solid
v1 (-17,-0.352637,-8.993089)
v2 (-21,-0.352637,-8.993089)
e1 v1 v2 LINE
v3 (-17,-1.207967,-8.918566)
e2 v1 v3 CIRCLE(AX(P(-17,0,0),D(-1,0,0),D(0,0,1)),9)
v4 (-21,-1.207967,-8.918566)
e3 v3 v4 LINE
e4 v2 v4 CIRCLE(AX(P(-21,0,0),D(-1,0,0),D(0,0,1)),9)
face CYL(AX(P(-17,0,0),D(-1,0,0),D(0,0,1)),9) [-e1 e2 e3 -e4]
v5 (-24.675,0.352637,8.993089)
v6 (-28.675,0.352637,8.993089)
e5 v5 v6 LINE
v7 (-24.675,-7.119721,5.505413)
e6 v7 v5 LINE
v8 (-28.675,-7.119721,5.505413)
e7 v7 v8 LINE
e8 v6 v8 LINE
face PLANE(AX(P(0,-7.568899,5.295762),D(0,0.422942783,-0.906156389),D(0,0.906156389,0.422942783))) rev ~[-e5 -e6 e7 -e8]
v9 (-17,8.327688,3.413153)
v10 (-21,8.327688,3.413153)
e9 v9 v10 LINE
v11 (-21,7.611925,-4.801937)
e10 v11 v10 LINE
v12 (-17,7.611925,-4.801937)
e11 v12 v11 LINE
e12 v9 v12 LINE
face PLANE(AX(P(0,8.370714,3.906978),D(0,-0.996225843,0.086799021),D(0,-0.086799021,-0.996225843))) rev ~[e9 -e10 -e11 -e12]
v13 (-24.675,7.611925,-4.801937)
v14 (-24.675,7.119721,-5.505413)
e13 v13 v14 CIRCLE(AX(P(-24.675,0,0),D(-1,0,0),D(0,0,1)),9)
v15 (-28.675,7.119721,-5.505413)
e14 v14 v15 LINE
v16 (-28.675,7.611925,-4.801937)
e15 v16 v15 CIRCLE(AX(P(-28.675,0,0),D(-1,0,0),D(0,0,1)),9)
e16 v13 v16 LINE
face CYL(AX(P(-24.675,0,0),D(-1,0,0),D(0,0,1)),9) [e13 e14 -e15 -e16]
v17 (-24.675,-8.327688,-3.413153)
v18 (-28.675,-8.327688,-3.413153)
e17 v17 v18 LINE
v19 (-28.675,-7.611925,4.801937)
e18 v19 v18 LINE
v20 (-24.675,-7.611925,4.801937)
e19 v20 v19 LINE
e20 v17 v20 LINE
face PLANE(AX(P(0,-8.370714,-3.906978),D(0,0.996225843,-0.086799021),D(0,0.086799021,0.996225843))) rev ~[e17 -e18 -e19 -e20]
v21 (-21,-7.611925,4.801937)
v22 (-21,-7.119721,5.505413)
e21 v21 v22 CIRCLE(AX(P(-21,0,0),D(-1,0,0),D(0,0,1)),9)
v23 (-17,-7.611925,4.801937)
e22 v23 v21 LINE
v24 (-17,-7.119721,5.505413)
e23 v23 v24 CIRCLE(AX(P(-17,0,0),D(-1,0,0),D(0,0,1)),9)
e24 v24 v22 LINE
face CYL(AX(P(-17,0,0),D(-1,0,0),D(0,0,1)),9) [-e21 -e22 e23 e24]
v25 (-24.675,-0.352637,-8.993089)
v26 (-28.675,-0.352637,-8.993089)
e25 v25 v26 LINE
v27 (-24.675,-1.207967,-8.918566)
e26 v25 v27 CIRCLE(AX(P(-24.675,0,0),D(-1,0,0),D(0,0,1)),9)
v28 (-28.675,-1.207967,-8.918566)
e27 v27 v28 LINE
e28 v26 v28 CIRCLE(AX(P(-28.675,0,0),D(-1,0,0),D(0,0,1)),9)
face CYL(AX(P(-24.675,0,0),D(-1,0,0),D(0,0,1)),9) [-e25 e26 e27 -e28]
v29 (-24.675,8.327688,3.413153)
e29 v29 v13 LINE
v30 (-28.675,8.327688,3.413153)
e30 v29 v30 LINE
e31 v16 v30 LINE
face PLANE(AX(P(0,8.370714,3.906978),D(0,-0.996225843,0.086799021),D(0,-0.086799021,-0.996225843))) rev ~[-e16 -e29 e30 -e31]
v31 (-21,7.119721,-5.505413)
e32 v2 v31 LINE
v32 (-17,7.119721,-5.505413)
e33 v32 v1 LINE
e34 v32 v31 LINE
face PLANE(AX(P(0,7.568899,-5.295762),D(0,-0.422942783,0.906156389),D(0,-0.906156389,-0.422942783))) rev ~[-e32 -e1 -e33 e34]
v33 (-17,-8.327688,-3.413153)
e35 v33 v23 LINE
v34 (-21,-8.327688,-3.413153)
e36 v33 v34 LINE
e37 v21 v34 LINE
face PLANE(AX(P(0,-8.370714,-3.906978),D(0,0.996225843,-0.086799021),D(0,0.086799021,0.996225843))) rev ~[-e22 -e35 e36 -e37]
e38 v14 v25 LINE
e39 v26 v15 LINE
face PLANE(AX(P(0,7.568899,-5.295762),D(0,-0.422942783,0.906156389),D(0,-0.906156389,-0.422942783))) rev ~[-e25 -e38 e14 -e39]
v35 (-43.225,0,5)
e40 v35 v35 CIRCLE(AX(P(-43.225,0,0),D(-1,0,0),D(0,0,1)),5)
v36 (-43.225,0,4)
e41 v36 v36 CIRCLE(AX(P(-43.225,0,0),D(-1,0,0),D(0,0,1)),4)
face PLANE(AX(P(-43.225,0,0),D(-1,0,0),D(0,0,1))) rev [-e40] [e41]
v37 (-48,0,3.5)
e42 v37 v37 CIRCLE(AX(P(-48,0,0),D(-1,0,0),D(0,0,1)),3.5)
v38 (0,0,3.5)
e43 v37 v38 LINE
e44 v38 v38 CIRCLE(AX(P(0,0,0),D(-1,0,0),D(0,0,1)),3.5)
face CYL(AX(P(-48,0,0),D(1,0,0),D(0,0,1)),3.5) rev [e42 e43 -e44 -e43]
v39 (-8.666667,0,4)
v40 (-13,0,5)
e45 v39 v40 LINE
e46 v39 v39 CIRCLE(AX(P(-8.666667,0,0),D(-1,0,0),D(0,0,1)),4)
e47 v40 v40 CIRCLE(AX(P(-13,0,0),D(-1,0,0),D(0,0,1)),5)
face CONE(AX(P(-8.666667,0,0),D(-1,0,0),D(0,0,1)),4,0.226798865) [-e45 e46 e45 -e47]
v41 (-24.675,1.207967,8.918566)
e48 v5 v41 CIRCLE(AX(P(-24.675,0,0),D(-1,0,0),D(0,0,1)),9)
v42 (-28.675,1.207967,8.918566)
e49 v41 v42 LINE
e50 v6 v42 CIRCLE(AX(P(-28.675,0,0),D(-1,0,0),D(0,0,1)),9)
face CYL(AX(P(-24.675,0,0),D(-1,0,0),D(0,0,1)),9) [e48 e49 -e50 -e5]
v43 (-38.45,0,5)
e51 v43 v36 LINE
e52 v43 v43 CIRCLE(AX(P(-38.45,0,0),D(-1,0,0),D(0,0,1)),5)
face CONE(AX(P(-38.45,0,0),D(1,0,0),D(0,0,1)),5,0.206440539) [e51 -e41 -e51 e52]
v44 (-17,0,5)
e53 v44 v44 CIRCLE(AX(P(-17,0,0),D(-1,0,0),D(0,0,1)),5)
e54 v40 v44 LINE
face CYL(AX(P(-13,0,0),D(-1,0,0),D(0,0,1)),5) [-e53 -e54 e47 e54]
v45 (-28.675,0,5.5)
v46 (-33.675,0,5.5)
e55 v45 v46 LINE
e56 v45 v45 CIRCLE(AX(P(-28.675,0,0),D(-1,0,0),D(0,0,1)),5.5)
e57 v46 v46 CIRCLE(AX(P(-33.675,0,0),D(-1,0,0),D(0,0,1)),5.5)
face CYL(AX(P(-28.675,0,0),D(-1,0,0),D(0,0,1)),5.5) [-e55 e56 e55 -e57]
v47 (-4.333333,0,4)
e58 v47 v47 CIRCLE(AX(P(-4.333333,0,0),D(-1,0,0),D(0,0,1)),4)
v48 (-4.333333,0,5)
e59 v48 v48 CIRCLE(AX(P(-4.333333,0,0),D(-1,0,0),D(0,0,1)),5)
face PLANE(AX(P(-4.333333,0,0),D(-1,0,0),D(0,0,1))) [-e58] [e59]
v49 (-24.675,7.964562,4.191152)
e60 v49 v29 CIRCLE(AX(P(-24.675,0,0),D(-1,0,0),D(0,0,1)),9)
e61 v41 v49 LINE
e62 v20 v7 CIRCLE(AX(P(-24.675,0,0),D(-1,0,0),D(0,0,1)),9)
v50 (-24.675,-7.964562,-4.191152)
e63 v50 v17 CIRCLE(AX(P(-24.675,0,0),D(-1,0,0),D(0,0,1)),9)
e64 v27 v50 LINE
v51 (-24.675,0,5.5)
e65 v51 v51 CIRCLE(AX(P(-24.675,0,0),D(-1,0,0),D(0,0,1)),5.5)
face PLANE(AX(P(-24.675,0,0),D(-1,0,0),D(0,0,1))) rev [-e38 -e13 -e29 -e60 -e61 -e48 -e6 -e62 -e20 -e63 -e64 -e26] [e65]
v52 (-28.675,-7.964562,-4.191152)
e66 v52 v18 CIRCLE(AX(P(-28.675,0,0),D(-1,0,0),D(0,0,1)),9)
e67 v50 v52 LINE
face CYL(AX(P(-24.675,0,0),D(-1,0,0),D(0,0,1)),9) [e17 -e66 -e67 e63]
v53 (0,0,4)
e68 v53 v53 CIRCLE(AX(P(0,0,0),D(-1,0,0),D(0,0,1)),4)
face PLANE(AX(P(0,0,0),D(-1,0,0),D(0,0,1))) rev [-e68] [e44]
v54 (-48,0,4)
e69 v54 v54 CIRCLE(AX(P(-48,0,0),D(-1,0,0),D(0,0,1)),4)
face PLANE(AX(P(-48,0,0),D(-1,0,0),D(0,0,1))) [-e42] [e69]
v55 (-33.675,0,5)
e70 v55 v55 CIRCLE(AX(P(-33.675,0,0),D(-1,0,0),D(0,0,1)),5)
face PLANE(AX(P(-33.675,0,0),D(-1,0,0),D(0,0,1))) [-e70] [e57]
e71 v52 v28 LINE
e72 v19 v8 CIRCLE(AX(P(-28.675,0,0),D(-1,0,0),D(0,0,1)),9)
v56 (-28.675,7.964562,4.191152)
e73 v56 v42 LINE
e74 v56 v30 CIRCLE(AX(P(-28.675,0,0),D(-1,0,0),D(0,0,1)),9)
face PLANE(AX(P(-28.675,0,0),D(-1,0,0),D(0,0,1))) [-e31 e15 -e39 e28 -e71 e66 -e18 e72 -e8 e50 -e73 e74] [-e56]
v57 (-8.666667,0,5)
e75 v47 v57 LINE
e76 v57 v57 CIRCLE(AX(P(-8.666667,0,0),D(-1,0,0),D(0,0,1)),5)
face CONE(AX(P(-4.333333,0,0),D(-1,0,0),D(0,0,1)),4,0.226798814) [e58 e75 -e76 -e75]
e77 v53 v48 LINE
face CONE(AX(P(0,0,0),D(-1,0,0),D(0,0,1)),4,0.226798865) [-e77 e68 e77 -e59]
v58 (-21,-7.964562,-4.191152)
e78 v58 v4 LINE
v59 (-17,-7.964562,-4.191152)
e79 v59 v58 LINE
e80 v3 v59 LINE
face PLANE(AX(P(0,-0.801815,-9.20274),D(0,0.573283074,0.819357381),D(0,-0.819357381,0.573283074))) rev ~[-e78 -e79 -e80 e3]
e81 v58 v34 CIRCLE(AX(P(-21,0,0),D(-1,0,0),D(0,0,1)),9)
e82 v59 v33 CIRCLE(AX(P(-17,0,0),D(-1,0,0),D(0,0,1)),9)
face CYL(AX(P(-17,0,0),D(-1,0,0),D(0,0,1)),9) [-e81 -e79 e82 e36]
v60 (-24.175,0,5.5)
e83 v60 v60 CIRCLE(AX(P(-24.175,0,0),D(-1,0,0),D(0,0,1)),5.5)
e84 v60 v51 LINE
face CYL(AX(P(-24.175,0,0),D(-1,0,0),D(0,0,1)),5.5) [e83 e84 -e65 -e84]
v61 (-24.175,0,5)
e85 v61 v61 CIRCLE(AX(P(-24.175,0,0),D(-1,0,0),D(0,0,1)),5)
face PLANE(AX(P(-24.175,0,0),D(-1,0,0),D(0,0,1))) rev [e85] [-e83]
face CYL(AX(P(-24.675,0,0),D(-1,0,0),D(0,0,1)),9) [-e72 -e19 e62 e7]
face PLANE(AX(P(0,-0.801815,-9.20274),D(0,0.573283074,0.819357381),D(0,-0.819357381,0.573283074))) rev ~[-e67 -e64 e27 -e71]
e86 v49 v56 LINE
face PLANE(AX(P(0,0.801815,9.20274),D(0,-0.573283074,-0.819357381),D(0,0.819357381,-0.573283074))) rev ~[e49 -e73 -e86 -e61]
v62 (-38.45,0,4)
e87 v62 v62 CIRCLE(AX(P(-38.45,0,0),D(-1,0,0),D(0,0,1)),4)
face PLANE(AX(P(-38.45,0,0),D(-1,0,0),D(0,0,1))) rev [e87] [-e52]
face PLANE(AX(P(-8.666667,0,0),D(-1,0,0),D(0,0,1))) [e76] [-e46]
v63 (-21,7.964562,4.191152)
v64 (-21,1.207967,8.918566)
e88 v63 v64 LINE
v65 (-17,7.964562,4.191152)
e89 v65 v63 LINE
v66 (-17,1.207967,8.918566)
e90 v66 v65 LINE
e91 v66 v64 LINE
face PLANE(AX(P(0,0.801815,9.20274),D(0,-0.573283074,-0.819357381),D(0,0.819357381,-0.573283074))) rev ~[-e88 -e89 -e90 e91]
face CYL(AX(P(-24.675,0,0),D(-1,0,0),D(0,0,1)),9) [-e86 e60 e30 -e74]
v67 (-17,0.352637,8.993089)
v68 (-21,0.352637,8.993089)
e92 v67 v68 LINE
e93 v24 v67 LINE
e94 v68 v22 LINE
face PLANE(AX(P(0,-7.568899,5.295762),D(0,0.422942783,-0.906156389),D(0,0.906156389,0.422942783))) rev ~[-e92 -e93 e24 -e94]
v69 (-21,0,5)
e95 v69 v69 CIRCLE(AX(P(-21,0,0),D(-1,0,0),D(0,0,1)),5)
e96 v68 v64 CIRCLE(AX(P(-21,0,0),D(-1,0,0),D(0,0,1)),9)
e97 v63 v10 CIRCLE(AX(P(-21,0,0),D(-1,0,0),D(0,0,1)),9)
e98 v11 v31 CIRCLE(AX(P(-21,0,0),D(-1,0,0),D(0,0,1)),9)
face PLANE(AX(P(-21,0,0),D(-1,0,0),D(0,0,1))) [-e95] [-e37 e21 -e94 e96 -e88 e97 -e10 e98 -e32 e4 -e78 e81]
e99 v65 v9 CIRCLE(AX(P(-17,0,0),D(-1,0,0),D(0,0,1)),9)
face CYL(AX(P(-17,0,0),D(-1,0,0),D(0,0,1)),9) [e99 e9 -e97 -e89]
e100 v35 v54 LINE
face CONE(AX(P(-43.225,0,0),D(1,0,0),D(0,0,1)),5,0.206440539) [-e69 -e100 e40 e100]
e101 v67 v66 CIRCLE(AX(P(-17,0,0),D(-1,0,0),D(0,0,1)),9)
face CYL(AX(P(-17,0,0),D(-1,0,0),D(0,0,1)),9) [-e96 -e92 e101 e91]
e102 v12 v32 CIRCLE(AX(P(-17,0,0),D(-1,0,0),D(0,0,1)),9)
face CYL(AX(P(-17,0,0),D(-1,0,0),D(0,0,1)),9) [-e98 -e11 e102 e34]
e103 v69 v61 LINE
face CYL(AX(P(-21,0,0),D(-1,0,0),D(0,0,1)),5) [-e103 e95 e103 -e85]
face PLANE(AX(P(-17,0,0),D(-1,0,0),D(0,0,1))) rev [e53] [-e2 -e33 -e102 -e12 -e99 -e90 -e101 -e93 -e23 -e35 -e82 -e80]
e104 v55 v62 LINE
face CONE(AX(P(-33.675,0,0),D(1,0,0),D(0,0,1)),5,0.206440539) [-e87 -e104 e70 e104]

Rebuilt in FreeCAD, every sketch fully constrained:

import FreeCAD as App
import Part
import Sketcher
Q = App.Units.Quantity


def add_polygon(sketch, points):
    """Adds a closed chain of lines whose ends are joined by coincident constraints."""
    first, n = sketch.GeometryCount, len(points)
    for a, b in zip(points, points[1:] + points[:1]):
        sketch.addGeometry(Part.LineSegment(App.Vector(*a, 0), App.Vector(*b, 0)), False)
    for i in range(n):
        sketch.addConstraint(Sketcher.Constraint("Coincident", first + i, 2, first + (i + 1) % n, 1))

doc = App.newDocument("Part")
body = doc.addObject("PartDesign::Body", "Body")

sketch1 = doc.addObject("Sketcher::SketchObject", "Sketch")
body.addObject(sketch1)
sketch1.AttachmentSupport = (doc.XZ_Plane, [""])
sketch1.MapMode = "FlatFace"
add_polygon(sketch1, [(-48, 4), (-48, 3.5), (0, 3.5), (0, 4), (-4.333333, 5), (-4.333333, 4), (-8.666667, 5), (-8.666667, 4), (-13, 5), (-17, 5), (-17, 9), (-21, 9), (-21, 5), (-24.175, 5), (-24.175, 5.5), (-24.675, 5.5), (-24.675, 9), (-28.675, 9), (-28.675, 5.5), (-33.675, 5.5), (-33.675, 5), (-38.45, 4), (-38.45, 5), (-43.225, 4), (-43.225, 5)])
sketch1.addConstraint(Sketcher.Constraint("Vertical", 0))
sketch1.addConstraint(Sketcher.Constraint("Horizontal", 1))
sketch1.addConstraint(Sketcher.Constraint("Vertical", 2))
sketch1.addConstraint(Sketcher.Constraint("Vertical", 4))
sketch1.addConstraint(Sketcher.Constraint("Vertical", 6))
sketch1.addConstraint(Sketcher.Constraint("Horizontal", 8))
sketch1.addConstraint(Sketcher.Constraint("Vertical", 9))
sketch1.addConstraint(Sketcher.Constraint("Horizontal", 10))
sketch1.addConstraint(Sketcher.Constraint("Vertical", 11))
sketch1.addConstraint(Sketcher.Constraint("Horizontal", 12))
sketch1.addConstraint(Sketcher.Constraint("Vertical", 13))
sketch1.addConstraint(Sketcher.Constraint("Horizontal", 14))
sketch1.addConstraint(Sketcher.Constraint("Vertical", 15))
sketch1.addConstraint(Sketcher.Constraint("Horizontal", 16))
sketch1.addConstraint(Sketcher.Constraint("Vertical", 17))
sketch1.addConstraint(Sketcher.Constraint("Horizontal", 18))
sketch1.addConstraint(Sketcher.Constraint("Vertical", 19))
sketch1.addConstraint(Sketcher.Constraint("Vertical", 21))
sketch1.addConstraint(Sketcher.Constraint("Vertical", 23))
sketch1.addConstraint(Sketcher.Constraint("PointOnObject", 1, 2, -2))
sketch1.addConstraint(Sketcher.Constraint("Parallel", 3, 5))
sketch1.addConstraint(Sketcher.Constraint("Parallel", 5, 7))
sketch1.addConstraint(Sketcher.Constraint("Parallel", 20, 22))
sketch1.addConstraint(Sketcher.Constraint("Parallel", 22, 24))
sketch1.addConstraint(Sketcher.Constraint("Horizontal", 2, 2, 4, 2))
sketch1.addConstraint(Sketcher.Constraint("Horizontal", 3, 2, 5, 2))
sketch1.addConstraint(Sketcher.Constraint("Horizontal", 4, 2, 6, 2))
sketch1.addConstraint(Sketcher.Constraint("Horizontal", 5, 2, 7, 2))
sketch1.addConstraint(Sketcher.Constraint("Horizontal", 8, 2, 11, 2))
sketch1.addConstraint(Sketcher.Constraint("Horizontal", 10, 2, 15, 2))
sketch1.addConstraint(Sketcher.Constraint("Horizontal", 14, 2, 17, 2))
sketch1.addConstraint(Sketcher.Constraint("Horizontal", 12, 2, 19, 2))
sketch1.addConstraint(Sketcher.Constraint("Horizontal", 6, 2, 20, 2))
sketch1.addConstraint(Sketcher.Constraint("Horizontal", 19, 2, 21, 2))
sketch1.addConstraint(Sketcher.Constraint("Horizontal", 20, 2, 22, 2))
sketch1.addConstraint(Sketcher.Constraint("Horizontal", 21, 2, 23, 2))
sketch1.addConstraint(Sketcher.Constraint("Horizontal", 22, 2, 24, 2))
sketch1.addConstraint(Sketcher.Constraint("Equal", 8, 10))
sketch1.addConstraint(Sketcher.Constraint("Equal", 10, 16))
sketch1.addConstraint(Sketcher.Constraint("Equal", 14, 0))
sketch1.addConstraint(Sketcher.Constraint("Equal", 16, 9))
sketch1.addConstraint(Sketcher.Constraint("Equal", 2, 13))
sketch1.addConstraint(Sketcher.Constraint("DistanceX", 1, 1, 1, 2, Q("48 mm")))
sketch1.addConstraint(Sketcher.Constraint("DistanceX", 8, 2, 8, 1, Q("4 mm")))
sketch1.addConstraint(Sketcher.Constraint("DistanceX", 18, 2, 18, 1, Q("5 mm")))
sketch1.addConstraint(Sketcher.Constraint("DistanceY", 4, 2, 4, 1, Q("1 mm")))
sketch1.addConstraint(Sketcher.Constraint("DistanceX", 14, 2, 14, 1, Q("0.5 mm")))
sketch1.addConstraint(Sketcher.Constraint("DistanceY", -1, 1, 2, 2, Q("4 mm")))
sketch1.addConstraint(Sketcher.Constraint("DistanceX", 7, 2, -1, 1, Q("13 mm")))
sketch1.addConstraint(Sketcher.Constraint("DistanceX", 12, 2, 12, 1, Q("3.175 mm")))
revolution = doc.addObject("PartDesign::Revolution", "Revolution")
body.addObject(revolution)
revolution.Profile = sketch1
revolution.ReferenceAxis = (sketch1, ["H_Axis"])
revolution.Angle = 360

sketch2 = doc.addObject("Sketcher::SketchObject", "Sketch001")
body.addObject(sketch2)
sketch2.AttachmentSupport = (doc.YZ_Plane, [""])
sketch2.MapMode = "FlatFace"
sketch2.addGeometry(Part.Circle(App.Vector(0, 0, 0), App.Vector(0, 0, 1), 19.00963), False)
add_polygon(sketch2, [(-7.568899, 5.295762), (0.801815, 9.20274), (8.370714, 3.906978), (7.568899, -5.295762), (-0.801815, -9.20274), (-8.370714, -3.906978)])
sketch2.addConstraint(Sketcher.Constraint("Coincident", 0, 3, -1, 1))
sketch2.addConstraint(Sketcher.Constraint("Symmetric", 1, 2, 4, 2, -1, 1))
sketch2.addConstraint(Sketcher.Constraint("Symmetric", 2, 2, 5, 2, -1, 1))
sketch2.addConstraint(Sketcher.Constraint("Symmetric", 3, 2, 6, 2, -1, 1))
sketch2.addConstraint(Sketcher.Constraint("Equal", 1, 2))
sketch2.addConstraint(Sketcher.Constraint("Equal", 2, 3))
sketch2.addConstraint(Sketcher.Constraint("Diameter", 0, Q("38.01926 mm")))
sketch2.addConstraint(Sketcher.Constraint("DistanceX", -1, 1, 3, 2, Q("7.568899 mm")))
sketch2.addConstraint(Sketcher.Constraint("DistanceX", 1, 2, 2, 2, Q("7.568899 mm")))
sketch2.addConstraint(Sketcher.Constraint("DistanceY", -1, 1, 1, 2, Q("9.20274 mm")))
sketch2.addConstraint(Sketcher.Constraint("DistanceY", -1, 1, 2, 2, Q("3.906978 mm")))
pocket1 = doc.addObject("PartDesign::Pocket", "Pocket")
body.addObject(pocket1)
pocket1.Profile = sketch2
pocket1.Length = 50.9

doc.recompute()
